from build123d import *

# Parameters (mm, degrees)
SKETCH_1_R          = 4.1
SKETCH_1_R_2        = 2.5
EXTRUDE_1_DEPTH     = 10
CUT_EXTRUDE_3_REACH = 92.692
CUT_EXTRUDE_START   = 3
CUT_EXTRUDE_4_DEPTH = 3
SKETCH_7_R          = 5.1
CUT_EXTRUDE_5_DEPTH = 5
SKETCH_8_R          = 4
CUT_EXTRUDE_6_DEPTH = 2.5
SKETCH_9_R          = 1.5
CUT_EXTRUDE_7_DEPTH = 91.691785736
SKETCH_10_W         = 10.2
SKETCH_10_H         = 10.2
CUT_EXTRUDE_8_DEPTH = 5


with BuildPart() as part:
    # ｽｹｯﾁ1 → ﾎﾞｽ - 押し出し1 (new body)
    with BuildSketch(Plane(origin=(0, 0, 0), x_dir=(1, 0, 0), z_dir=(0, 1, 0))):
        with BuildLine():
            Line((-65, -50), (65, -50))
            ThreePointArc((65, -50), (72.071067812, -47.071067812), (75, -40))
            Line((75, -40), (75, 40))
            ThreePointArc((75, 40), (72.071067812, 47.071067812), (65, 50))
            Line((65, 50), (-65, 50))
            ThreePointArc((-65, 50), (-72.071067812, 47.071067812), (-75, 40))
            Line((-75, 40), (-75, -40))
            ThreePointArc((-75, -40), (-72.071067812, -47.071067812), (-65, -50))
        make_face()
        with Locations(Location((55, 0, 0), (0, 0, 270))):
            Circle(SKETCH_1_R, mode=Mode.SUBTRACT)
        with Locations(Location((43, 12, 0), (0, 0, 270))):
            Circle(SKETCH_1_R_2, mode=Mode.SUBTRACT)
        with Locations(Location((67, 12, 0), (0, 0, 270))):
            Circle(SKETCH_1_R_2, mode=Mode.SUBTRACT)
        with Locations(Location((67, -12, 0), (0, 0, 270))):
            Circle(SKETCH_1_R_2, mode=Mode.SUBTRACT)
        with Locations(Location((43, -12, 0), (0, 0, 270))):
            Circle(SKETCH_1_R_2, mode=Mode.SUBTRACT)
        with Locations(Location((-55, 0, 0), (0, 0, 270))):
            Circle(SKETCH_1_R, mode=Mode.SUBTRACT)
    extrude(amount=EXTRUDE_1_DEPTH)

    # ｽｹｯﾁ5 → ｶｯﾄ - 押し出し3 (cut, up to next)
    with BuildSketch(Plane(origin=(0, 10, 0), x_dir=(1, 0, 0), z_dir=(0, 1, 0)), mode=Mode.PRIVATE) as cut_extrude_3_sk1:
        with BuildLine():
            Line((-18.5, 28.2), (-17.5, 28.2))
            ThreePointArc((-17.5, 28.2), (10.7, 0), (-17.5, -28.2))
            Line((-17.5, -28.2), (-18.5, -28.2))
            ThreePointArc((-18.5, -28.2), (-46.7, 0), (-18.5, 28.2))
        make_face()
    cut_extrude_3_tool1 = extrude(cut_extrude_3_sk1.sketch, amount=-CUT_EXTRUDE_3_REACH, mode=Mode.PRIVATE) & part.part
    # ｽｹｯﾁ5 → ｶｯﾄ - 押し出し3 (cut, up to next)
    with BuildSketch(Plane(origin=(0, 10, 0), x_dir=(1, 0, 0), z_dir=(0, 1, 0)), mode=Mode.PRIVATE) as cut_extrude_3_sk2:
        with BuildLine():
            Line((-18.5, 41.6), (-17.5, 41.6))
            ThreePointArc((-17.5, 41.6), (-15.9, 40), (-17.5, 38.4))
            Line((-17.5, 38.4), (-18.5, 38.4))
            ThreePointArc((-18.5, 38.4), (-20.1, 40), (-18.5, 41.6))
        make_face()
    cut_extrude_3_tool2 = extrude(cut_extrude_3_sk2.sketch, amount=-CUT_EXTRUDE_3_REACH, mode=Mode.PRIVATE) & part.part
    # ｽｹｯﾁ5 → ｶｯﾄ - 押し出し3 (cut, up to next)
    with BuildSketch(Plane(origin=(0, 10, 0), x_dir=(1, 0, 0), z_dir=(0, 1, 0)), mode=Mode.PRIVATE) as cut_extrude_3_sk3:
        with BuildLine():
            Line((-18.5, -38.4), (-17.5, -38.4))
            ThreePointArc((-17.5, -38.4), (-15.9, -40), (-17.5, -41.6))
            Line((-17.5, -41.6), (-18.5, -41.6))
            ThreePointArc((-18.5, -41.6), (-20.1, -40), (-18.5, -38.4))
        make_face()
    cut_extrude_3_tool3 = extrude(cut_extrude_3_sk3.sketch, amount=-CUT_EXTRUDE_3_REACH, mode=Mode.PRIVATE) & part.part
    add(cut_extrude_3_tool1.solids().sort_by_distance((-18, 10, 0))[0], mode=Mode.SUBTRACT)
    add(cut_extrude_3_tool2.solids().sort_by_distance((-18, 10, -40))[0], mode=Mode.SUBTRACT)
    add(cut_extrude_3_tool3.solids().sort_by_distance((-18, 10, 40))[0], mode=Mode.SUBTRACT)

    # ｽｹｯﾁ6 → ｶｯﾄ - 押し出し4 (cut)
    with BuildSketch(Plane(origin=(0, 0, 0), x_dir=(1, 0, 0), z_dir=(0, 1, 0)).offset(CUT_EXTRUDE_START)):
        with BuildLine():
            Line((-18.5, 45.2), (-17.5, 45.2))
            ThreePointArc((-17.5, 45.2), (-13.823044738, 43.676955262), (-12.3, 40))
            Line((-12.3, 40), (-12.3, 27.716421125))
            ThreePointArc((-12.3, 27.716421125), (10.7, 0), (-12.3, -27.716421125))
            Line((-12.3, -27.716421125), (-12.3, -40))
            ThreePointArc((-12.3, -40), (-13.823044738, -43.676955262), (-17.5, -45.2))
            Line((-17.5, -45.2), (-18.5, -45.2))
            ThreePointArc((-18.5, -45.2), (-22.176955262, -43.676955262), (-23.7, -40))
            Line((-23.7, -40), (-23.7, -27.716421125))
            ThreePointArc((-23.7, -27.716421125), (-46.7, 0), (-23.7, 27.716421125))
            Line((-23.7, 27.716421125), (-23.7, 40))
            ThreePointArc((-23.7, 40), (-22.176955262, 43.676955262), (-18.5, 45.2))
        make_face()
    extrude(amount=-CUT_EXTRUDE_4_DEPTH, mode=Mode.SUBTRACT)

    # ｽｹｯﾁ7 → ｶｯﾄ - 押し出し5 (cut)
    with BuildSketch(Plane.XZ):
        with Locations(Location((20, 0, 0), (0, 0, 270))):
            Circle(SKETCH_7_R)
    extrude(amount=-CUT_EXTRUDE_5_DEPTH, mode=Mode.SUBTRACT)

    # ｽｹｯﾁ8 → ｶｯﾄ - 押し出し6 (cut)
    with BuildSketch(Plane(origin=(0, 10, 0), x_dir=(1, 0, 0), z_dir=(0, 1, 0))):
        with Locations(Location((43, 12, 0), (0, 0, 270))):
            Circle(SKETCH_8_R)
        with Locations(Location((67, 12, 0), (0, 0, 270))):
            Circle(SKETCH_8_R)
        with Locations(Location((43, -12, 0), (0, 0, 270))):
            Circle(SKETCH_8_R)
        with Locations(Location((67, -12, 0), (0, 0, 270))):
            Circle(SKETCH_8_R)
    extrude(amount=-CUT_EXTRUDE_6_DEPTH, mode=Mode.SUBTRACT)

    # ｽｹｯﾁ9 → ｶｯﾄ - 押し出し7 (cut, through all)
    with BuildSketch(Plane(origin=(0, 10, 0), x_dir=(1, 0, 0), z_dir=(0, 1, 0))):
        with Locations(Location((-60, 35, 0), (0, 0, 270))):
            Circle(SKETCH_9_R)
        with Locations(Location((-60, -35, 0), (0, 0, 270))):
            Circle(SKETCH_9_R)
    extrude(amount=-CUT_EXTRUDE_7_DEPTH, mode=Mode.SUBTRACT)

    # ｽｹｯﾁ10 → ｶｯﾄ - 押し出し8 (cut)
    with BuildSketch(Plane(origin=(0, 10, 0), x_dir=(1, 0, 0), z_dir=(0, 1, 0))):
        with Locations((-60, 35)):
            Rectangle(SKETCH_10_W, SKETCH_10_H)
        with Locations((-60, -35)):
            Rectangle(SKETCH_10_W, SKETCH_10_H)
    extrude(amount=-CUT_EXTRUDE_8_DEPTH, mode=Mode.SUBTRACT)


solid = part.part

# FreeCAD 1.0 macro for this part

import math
import FreeCAD as App
import Part
import Sketcher

V = App.Vector
Q = App.Units.Quantity


def add_polygon(sketch, points):
    """Adds a closed chain of lines whose ends are joined by coincident constraints."""
    first, n = sketch.GeometryCount, len(points)
    for a, b in zip(points, points[1:] + points[:1]):
        sketch.addGeometry(Part.LineSegment(App.Vector(*a, 0), App.Vector(*b, 0)), False)
    for i in range(n):
        sketch.addConstraint(Sketcher.Constraint("Coincident", first + i, 2, first + (i + 1) % n, 1))

doc = App.newDocument("Part")
body = doc.addObject("PartDesign::Body", "Body")

# Sketch on XZ plane
sketch1 = body.newObject("Sketcher::SketchObject", "Sketch")
sketch1.AttachmentSupport = (doc.getObject("XZ_Plane"), [""])
sketch1.MapMode = "FlatFace"
sketch1.addGeometry([
    Part.LineSegment(V(-65, 50, 0), V(65, 50, 0)),  # 0
    Part.ArcOfCircle(Part.Circle(V(65, 40, 0), V(0, 0, 1), 10), math.radians(0), math.radians(90)),  # 1
    Part.LineSegment(V(75, 40, 0), V(75, -40, 0)),  # 2
    Part.ArcOfCircle(Part.Circle(V(65, -40, 0), V(0, 0, 1), 10), math.radians(-90), math.radians(0)),  # 3
    Part.LineSegment(V(65, -50, 0), V(-65, -50, 0)),  # 4
    Part.ArcOfCircle(Part.Circle(V(-65, -40, 0), V(0, 0, 1), 10), math.radians(180), math.radians(270)),  # 5
    Part.LineSegment(V(-75, -40, 0), V(-75, 40, 0)),  # 6
    Part.ArcOfCircle(Part.Circle(V(-65, 40, 0), V(0, 0, 1), 10), math.radians(90), math.radians(180)),  # 7
    Part.Circle(V(43, 12, 0), V(0, 0, 1), 2.5),  # 8
    Part.Circle(V(67, 12, 0), V(0, 0, 1), 2.5),  # 9
    Part.Circle(V(-55, 0, 0), V(0, 0, 1), 4.1),  # 10
    Part.Circle(V(55, 0, 0), V(0, 0, 1), 4.1),  # 11
    Part.Circle(V(43, -12, 0), V(0, 0, 1), 2.5),  # 12
    Part.Circle(V(67, -12, 0), V(0, 0, 1), 2.5),  # 13
], False)
sketch1.addConstraint([
    Sketcher.Constraint("Tangent", 0, 2, 1, 2),
    Sketcher.Constraint("Tangent", 1, 1, 2, 1),
    Sketcher.Constraint("Tangent", 2, 2, 3, 2),
    Sketcher.Constraint("Tangent", 3, 1, 4, 1),
    Sketcher.Constraint("Tangent", 4, 2, 5, 2),
    Sketcher.Constraint("Tangent", 5, 1, 6, 1),
    Sketcher.Constraint("Tangent", 6, 2, 7, 2),
    Sketcher.Constraint("Tangent", 7, 1, 0, 1),
    Sketcher.Constraint("Horizontal", 0),
    Sketcher.Constraint("Vertical", 2),
    Sketcher.Constraint("Horizontal", 4),
    Sketcher.Constraint("Vertical", 6),
    Sketcher.Constraint("Equal", 1, 3),
    Sketcher.Constraint("Equal", 3, 5),
    Sketcher.Constraint("Equal", 5, 7),
    Sketcher.Constraint("Equal", 8, 9),
    Sketcher.Constraint("Equal", 10, 11),
    Sketcher.Constraint("Equal", 9, 12),
    Sketcher.Constraint("Equal", 12, 13),
    Sketcher.Constraint("Symmetric", 1, 3, 5, 3, -1, 1),
    Sketcher.Constraint("Symmetric", 10, 3, 11, 3, -1, 1),
    Sketcher.Constraint("Symmetric", 8, 3, 12, 3, -1),
    Sketcher.Constraint("Symmetric", 9, 3, 13, 3, -1),
    Sketcher.Constraint("PointOnObject", 10, 3, -1),
    Sketcher.Constraint("Horizontal", 8, 3, 9, 3),
    Sketcher.Constraint("Diameter", 8, Q("5 mm")),
    Sketcher.Constraint("Radius", 1, Q("10 mm")),
    Sketcher.Constraint("Diameter", 10, Q("8.2 mm")),
    Sketcher.Constraint("DistanceX", 0, 1, 0, 2, Q("130 mm")),
    Sketcher.Constraint("DistanceY", 2, 2, 2, 1, Q("80 mm")),
    Sketcher.Constraint("DistanceX", -1, 1, 8, 3, Q("43 mm")),
    Sketcher.Constraint("DistanceY", -1, 1, 8, 3, Q("12 mm")),
    Sketcher.Constraint("DistanceX", -1, 1, 9, 3, Q("67 mm")),
    Sketcher.Constraint("DistanceX", 10, 3, -1, 1, Q("55 mm")),
])
pad1 = body.newObject("PartDesign::Pad", "Pad")
pad1.Profile = sketch1
pad1.Length = 10
pad1.Reversed = True

# Sketch on XZ plane
sketch2 = body.newObject("Sketcher::SketchObject", "Sketch001")
sketch2.AttachmentSupport = (doc.getObject("XZ_Plane"), [""])
sketch2.MapMode = "FlatFace"
sketch2.AttachmentOffset = App.Placement(V(0, 0, -10), App.Rotation())
sketch2.addGeometry([
    Part.LineSegment(V(-17.5, -28.2, 0), V(-18.5, -28.2, 0)),
    Part.ArcOfCircle(Part.Circle(V(-18.5, 0, 0), V(0, 0, 1), 28.2), math.radians(90), math.radians(270)),
    Part.LineSegment(V(-18.5, 28.2, 0), V(-17.5, 28.2, 0)),
    Part.ArcOfCircle(Part.Circle(V(-17.5, 0, 0), V(0, 0, 1), 28.2), math.radians(-90), math.radians(90)),
], False)
sketch2.addConstraint([
    Sketcher.Constraint("Tangent", 0, 2, 1, 2),
    Sketcher.Constraint("Tangent", 1, 1, 2, 1),
    Sketcher.Constraint("Tangent", 2, 2, 3, 2),
    Sketcher.Constraint("Tangent", 3, 1, 0, 1),
    Sketcher.Constraint("Horizontal", 0),
    Sketcher.Constraint("Horizontal", 2),
    Sketcher.Constraint("PointOnObject", 1, 3, -1),
    Sketcher.Constraint("Radius", 1, Q("28.2 mm")),
    Sketcher.Constraint("DistanceX", 0, 2, 0, 1, Q("1 mm")),
    Sketcher.Constraint("DistanceX", 1, 3, -1, 1, Q("18.5 mm")),
])
pocket1 = body.newObject("PartDesign::Pocket", "Pocket")
pocket1.Profile = sketch2
pocket1.Type = "UpToFirst"
pocket1.Reversed = True

# Sketch on XZ plane
sketch3 = body.newObject("Sketcher::SketchObject", "Sketch002")
sketch3.AttachmentSupport = (doc.getObject("XZ_Plane"), [""])
sketch3.MapMode = "FlatFace"
sketch3.AttachmentOffset = App.Placement(V(0, 0, -10), App.Rotation())
sketch3.addGeometry([
    Part.LineSegment(V(-17.5, -41.6, 0), V(-18.5, -41.6, 0)),
    Part.ArcOfCircle(Part.Circle(V(-18.5, -40, 0), V(0, 0, 1), 1.6), math.radians(90), math.radians(270)),
    Part.LineSegment(V(-18.5, -38.4, 0), V(-17.5, -38.4, 0)),
    Part.ArcOfCircle(Part.Circle(V(-17.5, -40, 0), V(0, 0, 1), 1.6), math.radians(-90), math.radians(90)),
], False)
sketch3.addConstraint([
    Sketcher.Constraint("Tangent", 0, 2, 1, 2),
    Sketcher.Constraint("Tangent", 1, 1, 2, 1),
    Sketcher.Constraint("Tangent", 2, 2, 3, 2),
    Sketcher.Constraint("Tangent", 3, 1, 0, 1),
    Sketcher.Constraint("Horizontal", 0),
    Sketcher.Constraint("Horizontal", 2),
    Sketcher.Constraint("Radius", 1, Q("1.6 mm")),
    Sketcher.Constraint("DistanceX", 0, 2, 0, 1, Q("1 mm")),
    Sketcher.Constraint("DistanceY", 1, 3, -1, 1, Q("40 mm")),
    Sketcher.Constraint("DistanceX", 1, 3, -1, 1, Q("18.5 mm")),
])
pocket2 = body.newObject("PartDesign::Pocket", "Pocket001")
pocket2.Profile = sketch3
pocket2.Type = "UpToFirst"
pocket2.Reversed = True

# Sketch on XZ plane
sketch4 = body.newObject("Sketcher::SketchObject", "Sketch003")
sketch4.AttachmentSupport = (doc.getObject("XZ_Plane"), [""])
sketch4.MapMode = "FlatFace"
sketch4.AttachmentOffset = App.Placement(V(0, 0, -10), App.Rotation())
sketch4.addGeometry([
    Part.LineSegment(V(-17.5, 38.4, 0), V(-18.5, 38.4, 0)),
    Part.ArcOfCircle(Part.Circle(V(-18.5, 40, 0), V(0, 0, 1), 1.6), math.radians(90), math.radians(270)),
    Part.LineSegment(V(-18.5, 41.6, 0), V(-17.5, 41.6, 0)),
    Part.ArcOfCircle(Part.Circle(V(-17.5, 40, 0), V(0, 0, 1), 1.6), math.radians(-90), math.radians(90)),
], False)
sketch4.addConstraint([
    Sketcher.Constraint("Tangent", 0, 2, 1, 2),
    Sketcher.Constraint("Tangent", 1, 1, 2, 1),
    Sketcher.Constraint("Tangent", 2, 2, 3, 2),
    Sketcher.Constraint("Tangent", 3, 1, 0, 1),
    Sketcher.Constraint("Horizontal", 0),
    Sketcher.Constraint("Horizontal", 2),
    Sketcher.Constraint("Radius", 1, Q("1.6 mm")),
    Sketcher.Constraint("DistanceX", 0, 2, 0, 1, Q("1 mm")),
    Sketcher.Constraint("DistanceY", -1, 1, 1, 3, Q("40 mm")),
    Sketcher.Constraint("DistanceX", 1, 3, -1, 1, Q("18.5 mm")),
])
pocket3 = body.newObject("PartDesign::Pocket", "Pocket002")
pocket3.Profile = sketch4
pocket3.Type = "UpToFirst"
pocket3.Reversed = True

# Sketch on XZ plane
sketch5 = body.newObject("Sketcher::SketchObject", "Sketch004")
sketch5.AttachmentSupport = (doc.getObject("XZ_Plane"), [""])
sketch5.MapMode = "FlatFace"
sketch5.AttachmentOffset = App.Placement(V(0, 0, -3), App.Rotation())
sketch5.addGeometry([
    Part.LineSegment(V(-17.5, -45.2, 0), V(-18.5, -45.2, 0)),  # 0
    Part.ArcOfCircle(Part.Circle(V(-18.5, -40, 0), V(0, 0, 1), 5.2), math.radians(-180), math.radians(-90)),  # 1
    Part.LineSegment(V(-23.7, -40, 0), V(-23.7, -27.716421, 0)),  # 2
    Part.ArcOfCircle(Part.Circle(V(-18.5, 0, 0), V(0, 0, 1), 28.2), math.radians(100.625988), math.radians(259.374012)),  # 3
    Part.LineSegment(V(-23.7, 27.716421, 0), V(-23.7, 40, 0)),  # 4
    Part.ArcOfCircle(Part.Circle(V(-18.5, 40, 0), V(0, 0, 1), 5.2), math.radians(90), math.radians(180)),  # 5
    Part.LineSegment(V(-18.5, 45.2, 0), V(-17.5, 45.2, 0)),  # 6
    Part.ArcOfCircle(Part.Circle(V(-17.5, 40, 0), V(0, 0, 1), 5.2), math.radians(0), math.radians(90)),  # 7
    Part.LineSegment(V(-12.3, 40, 0), V(-12.3, 27.716421, 0)),  # 8
    Part.ArcOfCircle(Part.Circle(V(-17.5, 0, 0), V(0, 0, 1), 28.2), math.radians(-79.374012), math.radians(79.374012)),  # 9
    Part.LineSegment(V(-12.3, -27.716421, 0), V(-12.3, -40, 0)),  # 10
    Part.ArcOfCircle(Part.Circle(V(-17.5, -40, 0), V(0, 0, 1), 5.2), math.radians(-90), math.radians(0)),  # 11
], False)
sketch5.addConstraint([
    Sketcher.Constraint("Tangent", 0, 2, 1, 2),
    Sketcher.Constraint("Tangent", 1, 1, 2, 1),
    Sketcher.Constraint("Coincident", 2, 2, 3, 2),
    Sketcher.Constraint("Coincident", 3, 1, 4, 1),
    Sketcher.Constraint("Tangent", 4, 2, 5, 2),
    Sketcher.Constraint("Tangent", 5, 1, 6, 1),
    Sketcher.Constraint("Tangent", 6, 2, 7, 2),
    Sketcher.Constraint("Tangent", 7, 1, 8, 1),
    Sketcher.Constraint("Coincident", 8, 2, 9, 2),
    Sketcher.Constraint("Coincident", 9, 1, 10, 1),
    Sketcher.Constraint("Tangent", 10, 2, 11, 2),
    Sketcher.Constraint("Tangent", 11, 1, 0, 1),
    Sketcher.Constraint("Horizontal", 0),
    Sketcher.Constraint("Vertical", 2),
    Sketcher.Constraint("Vertical", 4),
    Sketcher.Constraint("Horizontal", 6),
    Sketcher.Constraint("Vertical", 8),
    Sketcher.Constraint("Vertical", 10),
    Sketcher.Constraint("Equal", 1, 5),
    Sketcher.Constraint("Equal", 5, 7),
    Sketcher.Constraint("Equal", 3, 9),
    Sketcher.Constraint("Equal", 7, 11),
    Sketcher.Constraint("Symmetric", 1, 3, 5, 3, -1),
    Sketcher.Constraint("Symmetric", 8, 2, 9, 1, -1),
    Sketcher.Constraint("PointOnObject", 3, 3, -1),
    Sketcher.Constraint("Horizontal", 3, 1, 8, 2),
    Sketcher.Constraint("Vertical", 1, 3, 3, 3),
    Sketcher.Constraint("Radius", 1, Q("5.2 mm")),
    Sketcher.Constraint("Radius", 3, Q("28.2 mm")),
    Sketcher.Constraint("DistanceX", 0, 2, 0, 1, Q("1 mm")),
    Sketcher.Constraint("DistanceY", 1, 3, -1, 1, Q("40 mm")),
    Sketcher.Constraint("DistanceX", 1, 3, -1, 1, Q("18.5 mm")),
])
pocket4 = body.newObject("PartDesign::Pocket", "Pocket003")
pocket4.Profile = sketch5
pocket4.Length = 3
pocket4.Reversed = True

# Sketch on XZ plane
sketch6 = body.newObject("Sketcher::SketchObject", "Sketch005")
sketch6.AttachmentSupport = (doc.getObject("XZ_Plane"), [""])
sketch6.MapMode = "FlatFace"
sketch6.addGeometry(Part.Circle(V(20, 0, 0), V(0, 0, 1), 5.1), False)
sketch6.addConstraint([
    Sketcher.Constraint("PointOnObject", 0, 3, -1),
    Sketcher.Constraint("Diameter", 0, Q("10.2 mm")),
    Sketcher.Constraint("DistanceX", -1, 1, 0, 3, Q("20 mm")),
])
pocket5 = body.newObject("PartDesign::Pocket", "Pocket004")
pocket5.Profile = sketch6
pocket5.Length = 5

# Sketch on XZ plane
sketch7 = body.newObject("Sketcher::SketchObject", "Sketch006")
sketch7.AttachmentSupport = (doc.getObject("XZ_Plane"), [""])
sketch7.MapMode = "FlatFace"
sketch7.AttachmentOffset = App.Placement(V(0, 0, -10), App.Rotation())
sketch7.addGeometry([
    Part.Circle(V(43, -12, 0), V(0, 0, 1), 4),
    Part.Circle(V(67, -12, 0), V(0, 0, 1), 4),
    Part.Circle(V(43, 12, 0), V(0, 0, 1), 4),
    Part.Circle(V(67, 12, 0), V(0, 0, 1), 4),
], False)
sketch7.addConstraint([
    Sketcher.Constraint("Equal", 0, 1),
    Sketcher.Constraint("Equal", 1, 2),
    Sketcher.Constraint("Equal", 2, 3),
    Sketcher.Constraint("Symmetric", 0, 3, 2, 3, -1),
    Sketcher.Constraint("Symmetric", 1, 3, 3, 3, -1),
    Sketcher.Constraint("Horizontal", 0, 3, 1, 3),
    Sketcher.Constraint("Diameter", 0, Q("8 mm")),
    Sketcher.Constraint("DistanceX", -1, 1, 0, 3, Q("43 mm")),
    Sketcher.Constraint("DistanceY", 0, 3, -1, 1, Q("12 mm")),
    Sketcher.Constraint("DistanceX", -1, 1, 1, 3, Q("67 mm")),
])
pocket6 = body.newObject("PartDesign::Pocket", "Pocket005")
pocket6.Profile = sketch7
pocket6.Length = 2.5
pocket6.Reversed = True

# Sketch on XZ plane
sketch8 = body.newObject("Sketcher::SketchObject", "Sketch007")
sketch8.AttachmentSupport = (doc.getObject("XZ_Plane"), [""])
sketch8.MapMode = "FlatFace"
sketch8.AttachmentOffset = App.Placement(V(0, 0, -10), App.Rotation())
sketch8.addGeometry([
    Part.Circle(V(-60, -35, 0), V(0, 0, 1), 1.5),
    Part.Circle(V(-60, 35, 0), V(0, 0, 1), 1.5),
], False)
sketch8.addConstraint([
    Sketcher.Constraint("Equal", 0, 1),
    Sketcher.Constraint("Symmetric", 0, 3, 1, 3, -1),
    Sketcher.Constraint("Diameter", 0, Q("3 mm")),
    Sketcher.Constraint("DistanceX", 0, 3, -1, 1, Q("60 mm")),
    Sketcher.Constraint("DistanceY", 0, 3, -1, 1, Q("35 mm")),
])
pocket7 = body.newObject("PartDesign::Pocket", "Pocket006")
pocket7.Profile = sketch8
pocket7.Type = "ThroughAll"
pocket7.Reversed = True

# Sketch on XZ plane
sketch9 = body.newObject("Sketcher::SketchObject", "Sketch008")
sketch9.AttachmentSupport = (doc.getObject("XZ_Plane"), [""])
sketch9.MapMode = "FlatFace"
sketch9.AttachmentOffset = App.Placement(V(0, 0, -10), App.Rotation())
add_polygon(sketch9, [(-65.1, -40.1), (-65.1, -29.9), (-54.9, -29.9), (-54.9, -40.1)])  # lines 0-3
add_polygon(sketch9, [(-65.1, 29.9), (-65.1, 40.1), (-54.9, 40.1), (-54.9, 29.9)])  # lines 4-7
sketch9.addConstraint([
    Sketcher.Constraint("Vertical", 0),
    Sketcher.Constraint("Horizontal", 1),
    Sketcher.Constraint("Vertical", 2),
    Sketcher.Constraint("Horizontal", 3),
    Sketcher.Constraint("Vertical", 4),
    Sketcher.Constraint("Horizontal", 5),
    Sketcher.Constraint("Vertical", 6),
    Sketcher.Constraint("Horizontal", 7),
    Sketcher.Constraint("Symmetric", 3, 2, 4, 2, -1),
    Sketcher.Constraint("Symmetric", 1, 2, 6, 2, -1),
    Sketcher.Constraint("Equal", 7, 0),
    Sketcher.Constraint("DistanceX", 1, 1, 1, 2, Q("10.2 mm")),
    Sketcher.Constraint("DistanceY", 0, 2, 4, 2, Q("70 mm")),
    Sketcher.Constraint("DistanceX", 0, 2, -1, 1, Q("65.1 mm")),
])
pocket8 = body.newObject("PartDesign::Pocket", "Pocket007")
pocket8.Profile = sketch9
pocket8.Length = 5
pocket8.Reversed = True

doc.recompute()
